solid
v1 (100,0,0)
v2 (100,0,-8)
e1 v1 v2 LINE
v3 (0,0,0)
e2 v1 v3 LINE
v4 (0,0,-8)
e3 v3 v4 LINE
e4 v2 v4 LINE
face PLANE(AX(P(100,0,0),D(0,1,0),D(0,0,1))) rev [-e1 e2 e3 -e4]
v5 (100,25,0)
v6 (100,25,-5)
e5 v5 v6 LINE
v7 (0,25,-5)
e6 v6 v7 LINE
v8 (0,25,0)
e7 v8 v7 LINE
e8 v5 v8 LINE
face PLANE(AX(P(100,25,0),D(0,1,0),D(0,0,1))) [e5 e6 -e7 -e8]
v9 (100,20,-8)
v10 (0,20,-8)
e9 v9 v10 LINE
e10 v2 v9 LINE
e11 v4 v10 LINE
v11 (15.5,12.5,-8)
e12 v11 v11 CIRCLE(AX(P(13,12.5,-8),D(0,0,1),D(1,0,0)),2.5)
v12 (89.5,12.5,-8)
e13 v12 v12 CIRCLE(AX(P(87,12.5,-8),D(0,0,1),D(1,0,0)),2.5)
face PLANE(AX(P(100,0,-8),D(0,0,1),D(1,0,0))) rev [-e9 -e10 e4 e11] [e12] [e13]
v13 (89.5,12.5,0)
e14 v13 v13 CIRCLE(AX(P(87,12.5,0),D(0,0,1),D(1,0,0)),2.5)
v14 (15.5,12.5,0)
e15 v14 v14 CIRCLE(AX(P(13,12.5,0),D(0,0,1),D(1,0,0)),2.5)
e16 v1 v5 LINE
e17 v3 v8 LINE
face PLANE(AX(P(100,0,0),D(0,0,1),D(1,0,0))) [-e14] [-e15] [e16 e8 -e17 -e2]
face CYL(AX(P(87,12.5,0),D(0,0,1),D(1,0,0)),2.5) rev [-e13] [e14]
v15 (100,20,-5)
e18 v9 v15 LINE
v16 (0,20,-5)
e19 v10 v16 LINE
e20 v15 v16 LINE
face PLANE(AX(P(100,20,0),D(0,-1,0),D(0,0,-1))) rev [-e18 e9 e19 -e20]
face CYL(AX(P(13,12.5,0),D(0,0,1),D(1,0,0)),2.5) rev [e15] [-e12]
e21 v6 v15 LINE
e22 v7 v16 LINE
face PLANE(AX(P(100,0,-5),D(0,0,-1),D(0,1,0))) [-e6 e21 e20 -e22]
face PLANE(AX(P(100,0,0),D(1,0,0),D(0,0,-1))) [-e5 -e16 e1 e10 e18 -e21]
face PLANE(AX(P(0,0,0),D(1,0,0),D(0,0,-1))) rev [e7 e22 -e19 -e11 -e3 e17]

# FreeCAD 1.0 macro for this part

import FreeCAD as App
import Part
import Sketcher

V = App.Vector
Q = App.Units.Quantity


def add_polygon(sketch, points):
    """Adds a closed chain of lines whose ends are joined by coincident constraints."""
    first, n = sketch.GeometryCount, len(points)
    for a, b in zip(points, points[1:] + points[:1]):
        sketch.addGeometry(Part.LineSegment(App.Vector(*a, 0), App.Vector(*b, 0)), False)
    for i in range(n):
        sketch.addConstraint(Sketcher.Constraint("Coincident", first + i, 2, first + (i + 1) % n, 1))

doc = App.newDocument("Part")
body = doc.addObject("PartDesign::Body", "Body")

sketch1 = body.newObject("Sketcher::SketchObject", "Sketch")
sketch1.AttachmentSupport = (doc.getObject("YZ_Plane"), [""])
sketch1.MapMode = "FlatFace"
add_polygon(sketch1, [(25, 0), (0, 0), (0, -8), (20, -8), (20, -5), (25, -5)])
sketch1.addConstraint(Sketcher.Constraint("Horizontal", 0))
sketch1.addConstraint(Sketcher.Constraint("Vertical", 1))
sketch1.addConstraint(Sketcher.Constraint("Horizontal", 2))
sketch1.addConstraint(Sketcher.Constraint("Vertical", 3))
sketch1.addConstraint(Sketcher.Constraint("Horizontal", 4))
sketch1.addConstraint(Sketcher.Constraint("Vertical", 5))
sketch1.addConstraint(Sketcher.Constraint("Coincident", 0, 2, -1, 1))
sketch1.addConstraint(Sketcher.Constraint("Equal", 4, 5))
sketch1.addConstraint(Sketcher.Constraint("DistanceX", 0, 2, 0, 1, Q("25 mm")))
sketch1.addConstraint(Sketcher.Constraint("DistanceX", 2, 1, 2, 2, Q("20 mm")))
sketch1.addConstraint(Sketcher.Constraint("DistanceY", 1, 2, 1, 1, Q("8 mm")))
pad1 = body.newObject("PartDesign::Pad", "Pad")
pad1.Profile = sketch1
pad1.Length = 100

sketch2 = body.newObject("Sketcher::SketchObject", "Sketch001")
sketch2.AttachmentSupport = (doc.getObject("XY_Plane"), [""])
sketch2.MapMode = "FlatFace"
sketch2.addGeometry(Part.Circle(V(87, 12.5, 0), V(0, 0, 1), 2.5), False)
sketch2.addGeometry(Part.Circle(V(13, 12.5, 0), V(0, 0, 1), 2.5), False)
sketch2.addConstraint(Sketcher.Constraint("Equal", 0, 1))
sketch2.addConstraint(Sketcher.Constraint("Horizontal", 0, 3, 1, 3))
sketch2.addConstraint(Sketcher.Constraint("Diameter", 0, Q("5 mm")))
sketch2.addConstraint(Sketcher.Constraint("DistanceX", -1, 1, 0, 3, Q("87 mm")))
sketch2.addConstraint(Sketcher.Constraint("DistanceX", -1, 1, 1, 3, Q("13 mm")))
sketch2.addConstraint(Sketcher.Constraint("DistanceY", -1, 1, 0, 3, Q("12.5 mm")))
doc.recompute()
hole = body.newObject("PartDesign::Hole", "Hole")
hole.Profile = sketch2
hole.ThreadType = "None"
hole.Diameter = 5
hole.DepthType = "ThroughAll"

doc.recompute()
